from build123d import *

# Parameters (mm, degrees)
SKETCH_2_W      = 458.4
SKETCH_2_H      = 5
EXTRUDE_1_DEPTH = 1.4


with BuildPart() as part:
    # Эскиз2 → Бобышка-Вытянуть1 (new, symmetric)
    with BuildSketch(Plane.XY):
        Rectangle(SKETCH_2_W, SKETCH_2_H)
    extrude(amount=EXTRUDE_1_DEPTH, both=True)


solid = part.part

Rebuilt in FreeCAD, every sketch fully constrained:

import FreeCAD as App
import Part
import Sketcher
from FreeCAD import Vector
Q = App.Units.Quantity

doc = App.newDocument("Part")
body = doc.addObject("PartDesign::Body", "Body")

sketch1 = body.newObject("Sketcher::SketchObject", "Sketch")
sketch1.AttachmentSupport = (doc.getObject("XY_Plane"), [""])
sketch1.MapMode = "FlatFace"
sketch1.addGeometry(Part.LineSegment(Vector(-229, 2, 0), Vector(-229, -2, 0)), False)
sketch1.addGeometry(Part.LineSegment(Vector(-229, -2, 0), Vector(229, -2, 0)), False)
sketch1.addGeometry(Part.LineSegment(Vector(229, -2, 0), Vector(229, 2, 0)), False)
sketch1.addGeometry(Part.LineSegment(Vector(229, 2, 0), Vector(-229, 2, 0)), False)
sketch1.addConstraint(Sketcher.Constraint("Coincident", 0, 2, 1, 1))
sketch1.addConstraint(Sketcher.Constraint("Coincident", 1, 2, 2, 1))
sketch1.addConstraint(Sketcher.Constraint("Coincident", 2, 2, 3, 1))
sketch1.addConstraint(Sketcher.Constraint("Coincident", 3, 2, 0, 1))
sketch1.addConstraint(Sketcher.Constraint("Vertical", 0))
sketch1.addConstraint(Sketcher.Constraint("Horizontal", 1))
sketch1.addConstraint(Sketcher.Constraint("Vertical", 2))
sketch1.addConstraint(Sketcher.Constraint("Horizontal", 3))
sketch1.addConstraint(Sketcher.Constraint("Symmetric", 0, 2, 2, 2, -1, 1))
sketch1.addConstraint(Sketcher.Constraint("DistanceY", 0, 2, 0, 1, Q("5 mm")))
sketch1.addConstraint(Sketcher.Constraint("DistanceX", 1, 1, 1, 2, Q("458.4 mm")))
pad1 = body.newObject("PartDesign::Pad", "Pad")
pad1.Profile = sketch1
pad1.Length = 2.8
pad1.Midplane = True

doc.recompute()
